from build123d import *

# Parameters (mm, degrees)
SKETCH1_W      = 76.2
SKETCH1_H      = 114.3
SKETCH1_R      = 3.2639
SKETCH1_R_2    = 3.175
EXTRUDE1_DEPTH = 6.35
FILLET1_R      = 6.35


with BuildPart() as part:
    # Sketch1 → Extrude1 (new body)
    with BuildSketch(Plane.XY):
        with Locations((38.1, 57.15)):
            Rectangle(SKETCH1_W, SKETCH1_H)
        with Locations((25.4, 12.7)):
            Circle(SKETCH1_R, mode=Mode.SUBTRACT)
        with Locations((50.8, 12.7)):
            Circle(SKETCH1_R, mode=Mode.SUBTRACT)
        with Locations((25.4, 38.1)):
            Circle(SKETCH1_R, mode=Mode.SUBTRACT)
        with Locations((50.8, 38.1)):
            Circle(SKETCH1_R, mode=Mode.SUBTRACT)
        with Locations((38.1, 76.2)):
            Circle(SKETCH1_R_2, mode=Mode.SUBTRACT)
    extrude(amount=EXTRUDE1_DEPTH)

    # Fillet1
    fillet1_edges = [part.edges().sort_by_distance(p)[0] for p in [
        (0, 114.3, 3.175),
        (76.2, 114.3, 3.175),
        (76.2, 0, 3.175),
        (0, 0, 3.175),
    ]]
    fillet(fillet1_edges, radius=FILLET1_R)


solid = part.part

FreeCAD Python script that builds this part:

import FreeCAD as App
import Part
import Sketcher
Q = App.Units.Quantity


def edges_at(feature, points):
    """Names of the edges that pass closest to the given points."""
    edges = feature.Shape.Edges
    near = lambda p: min(range(len(edges)), key=lambda i: edges[i].distToShape(Part.Vertex(*p))[0])
    return sorted({f"Edge{near(p) + 1}" for p in points})

doc = App.newDocument("Part")
body = doc.addObject("PartDesign::Body", "Body")

sketch1 = doc.addObject("Sketcher::SketchObject", "Sketch")
body.addObject(sketch1)
sketch1.AttachmentSupport = (doc.XY_Plane, [""])
sketch1.MapMode = "FlatFace"
sketch1.addGeometry([
    Part.LineSegment(App.Vector(0, 114.3, 0), App.Vector(0, 0, 0)),
    Part.LineSegment(App.Vector(0, 0, 0), App.Vector(76.2, 0, 0)),
    Part.LineSegment(App.Vector(76.2, 0, 0), App.Vector(76.2, 114.3, 0)),
    Part.LineSegment(App.Vector(76.2, 114.3, 0), App.Vector(0, 114.3, 0)),
    Part.Circle(App.Vector(25.4, 12.7, 0), App.Vector(0, 0, 1), 3.3),
    Part.Circle(App.Vector(25.4, 38.1, 0), App.Vector(0, 0, 1), 3.3),
    Part.Circle(App.Vector(50.8, 12.7, 0), App.Vector(0, 0, 1), 3.3),
    Part.Circle(App.Vector(50.8, 38.1, 0), App.Vector(0, 0, 1), 3.3),
    Part.Circle(App.Vector(38.1, 76.2, 0), App.Vector(0, 0, 1), 3.2),
], False)
sketch1.addConstraint([
    Sketcher.Constraint("Coincident", 0, 2, 1, 1),
    Sketcher.Constraint("Coincident", 1, 2, 2, 1),
    Sketcher.Constraint("Coincident", 2, 2, 3, 1),
    Sketcher.Constraint("Coincident", 3, 2, 0, 1),
    Sketcher.Constraint("Vertical", 0),
    Sketcher.Constraint("Horizontal", 1),
    Sketcher.Constraint("Vertical", 2),
    Sketcher.Constraint("Horizontal", 3),
    Sketcher.Constraint("Coincident", 0, 2, -1, 1),
    Sketcher.Constraint("Equal", 4, 5),
    Sketcher.Constraint("Equal", 5, 6),
    Sketcher.Constraint("Equal", 6, 7),
    Sketcher.Constraint("Horizontal", 4, 3, 6, 3),
    Sketcher.Constraint("Horizontal", 5, 3, 7, 3),
    Sketcher.Constraint("Vertical", 4, 3, 5, 3),
    Sketcher.Constraint("Vertical", 6, 3, 7, 3),
    Sketcher.Constraint("Diameter", 8, Q("0.25 in")),
    Sketcher.Constraint("DistanceX", 1, 1, 1, 2, Q("3 in")),
    Sketcher.Constraint("Diameter", 4, Q("0.257 in")),
    Sketcher.Constraint("DistanceY", 0, 2, 0, 1, Q("4.5 in")),
    Sketcher.Constraint("DistanceX", -1, 1, 4, 3, Q("1 in")),
    Sketcher.Constraint("DistanceX", -1, 1, 6, 3, Q("2 in")),
    Sketcher.Constraint("DistanceY", -1, 1, 8, 3, Q("3 in")),
    Sketcher.Constraint("DistanceY", 4, 3, 5, 3, Q("1 in")),
    Sketcher.Constraint("DistanceY", 7, 3, 2, 2, Q("3 in")),
    Sketcher.Constraint("DistanceX", -1, 1, 8, 3, Q("1.5 in")),
])
pad1 = doc.addObject("PartDesign::Pad", "Pad")
body.addObject(pad1)
pad1.Profile = sketch1
pad1.Length = Q("0.25 in")
doc.recompute()

fillet = doc.addObject("PartDesign::Fillet", "Fillet")
body.addObject(fillet)
fillet.Base = (pad1, edges_at(pad1, [
    (0, 114.3, 3.175),
    (76.2, 114.3, 3.175),
    (76.2, 0, 3.175),
    (0, 0, 3.175),
]))
fillet.Radius = Q("0.25 in")

doc.recompute()
